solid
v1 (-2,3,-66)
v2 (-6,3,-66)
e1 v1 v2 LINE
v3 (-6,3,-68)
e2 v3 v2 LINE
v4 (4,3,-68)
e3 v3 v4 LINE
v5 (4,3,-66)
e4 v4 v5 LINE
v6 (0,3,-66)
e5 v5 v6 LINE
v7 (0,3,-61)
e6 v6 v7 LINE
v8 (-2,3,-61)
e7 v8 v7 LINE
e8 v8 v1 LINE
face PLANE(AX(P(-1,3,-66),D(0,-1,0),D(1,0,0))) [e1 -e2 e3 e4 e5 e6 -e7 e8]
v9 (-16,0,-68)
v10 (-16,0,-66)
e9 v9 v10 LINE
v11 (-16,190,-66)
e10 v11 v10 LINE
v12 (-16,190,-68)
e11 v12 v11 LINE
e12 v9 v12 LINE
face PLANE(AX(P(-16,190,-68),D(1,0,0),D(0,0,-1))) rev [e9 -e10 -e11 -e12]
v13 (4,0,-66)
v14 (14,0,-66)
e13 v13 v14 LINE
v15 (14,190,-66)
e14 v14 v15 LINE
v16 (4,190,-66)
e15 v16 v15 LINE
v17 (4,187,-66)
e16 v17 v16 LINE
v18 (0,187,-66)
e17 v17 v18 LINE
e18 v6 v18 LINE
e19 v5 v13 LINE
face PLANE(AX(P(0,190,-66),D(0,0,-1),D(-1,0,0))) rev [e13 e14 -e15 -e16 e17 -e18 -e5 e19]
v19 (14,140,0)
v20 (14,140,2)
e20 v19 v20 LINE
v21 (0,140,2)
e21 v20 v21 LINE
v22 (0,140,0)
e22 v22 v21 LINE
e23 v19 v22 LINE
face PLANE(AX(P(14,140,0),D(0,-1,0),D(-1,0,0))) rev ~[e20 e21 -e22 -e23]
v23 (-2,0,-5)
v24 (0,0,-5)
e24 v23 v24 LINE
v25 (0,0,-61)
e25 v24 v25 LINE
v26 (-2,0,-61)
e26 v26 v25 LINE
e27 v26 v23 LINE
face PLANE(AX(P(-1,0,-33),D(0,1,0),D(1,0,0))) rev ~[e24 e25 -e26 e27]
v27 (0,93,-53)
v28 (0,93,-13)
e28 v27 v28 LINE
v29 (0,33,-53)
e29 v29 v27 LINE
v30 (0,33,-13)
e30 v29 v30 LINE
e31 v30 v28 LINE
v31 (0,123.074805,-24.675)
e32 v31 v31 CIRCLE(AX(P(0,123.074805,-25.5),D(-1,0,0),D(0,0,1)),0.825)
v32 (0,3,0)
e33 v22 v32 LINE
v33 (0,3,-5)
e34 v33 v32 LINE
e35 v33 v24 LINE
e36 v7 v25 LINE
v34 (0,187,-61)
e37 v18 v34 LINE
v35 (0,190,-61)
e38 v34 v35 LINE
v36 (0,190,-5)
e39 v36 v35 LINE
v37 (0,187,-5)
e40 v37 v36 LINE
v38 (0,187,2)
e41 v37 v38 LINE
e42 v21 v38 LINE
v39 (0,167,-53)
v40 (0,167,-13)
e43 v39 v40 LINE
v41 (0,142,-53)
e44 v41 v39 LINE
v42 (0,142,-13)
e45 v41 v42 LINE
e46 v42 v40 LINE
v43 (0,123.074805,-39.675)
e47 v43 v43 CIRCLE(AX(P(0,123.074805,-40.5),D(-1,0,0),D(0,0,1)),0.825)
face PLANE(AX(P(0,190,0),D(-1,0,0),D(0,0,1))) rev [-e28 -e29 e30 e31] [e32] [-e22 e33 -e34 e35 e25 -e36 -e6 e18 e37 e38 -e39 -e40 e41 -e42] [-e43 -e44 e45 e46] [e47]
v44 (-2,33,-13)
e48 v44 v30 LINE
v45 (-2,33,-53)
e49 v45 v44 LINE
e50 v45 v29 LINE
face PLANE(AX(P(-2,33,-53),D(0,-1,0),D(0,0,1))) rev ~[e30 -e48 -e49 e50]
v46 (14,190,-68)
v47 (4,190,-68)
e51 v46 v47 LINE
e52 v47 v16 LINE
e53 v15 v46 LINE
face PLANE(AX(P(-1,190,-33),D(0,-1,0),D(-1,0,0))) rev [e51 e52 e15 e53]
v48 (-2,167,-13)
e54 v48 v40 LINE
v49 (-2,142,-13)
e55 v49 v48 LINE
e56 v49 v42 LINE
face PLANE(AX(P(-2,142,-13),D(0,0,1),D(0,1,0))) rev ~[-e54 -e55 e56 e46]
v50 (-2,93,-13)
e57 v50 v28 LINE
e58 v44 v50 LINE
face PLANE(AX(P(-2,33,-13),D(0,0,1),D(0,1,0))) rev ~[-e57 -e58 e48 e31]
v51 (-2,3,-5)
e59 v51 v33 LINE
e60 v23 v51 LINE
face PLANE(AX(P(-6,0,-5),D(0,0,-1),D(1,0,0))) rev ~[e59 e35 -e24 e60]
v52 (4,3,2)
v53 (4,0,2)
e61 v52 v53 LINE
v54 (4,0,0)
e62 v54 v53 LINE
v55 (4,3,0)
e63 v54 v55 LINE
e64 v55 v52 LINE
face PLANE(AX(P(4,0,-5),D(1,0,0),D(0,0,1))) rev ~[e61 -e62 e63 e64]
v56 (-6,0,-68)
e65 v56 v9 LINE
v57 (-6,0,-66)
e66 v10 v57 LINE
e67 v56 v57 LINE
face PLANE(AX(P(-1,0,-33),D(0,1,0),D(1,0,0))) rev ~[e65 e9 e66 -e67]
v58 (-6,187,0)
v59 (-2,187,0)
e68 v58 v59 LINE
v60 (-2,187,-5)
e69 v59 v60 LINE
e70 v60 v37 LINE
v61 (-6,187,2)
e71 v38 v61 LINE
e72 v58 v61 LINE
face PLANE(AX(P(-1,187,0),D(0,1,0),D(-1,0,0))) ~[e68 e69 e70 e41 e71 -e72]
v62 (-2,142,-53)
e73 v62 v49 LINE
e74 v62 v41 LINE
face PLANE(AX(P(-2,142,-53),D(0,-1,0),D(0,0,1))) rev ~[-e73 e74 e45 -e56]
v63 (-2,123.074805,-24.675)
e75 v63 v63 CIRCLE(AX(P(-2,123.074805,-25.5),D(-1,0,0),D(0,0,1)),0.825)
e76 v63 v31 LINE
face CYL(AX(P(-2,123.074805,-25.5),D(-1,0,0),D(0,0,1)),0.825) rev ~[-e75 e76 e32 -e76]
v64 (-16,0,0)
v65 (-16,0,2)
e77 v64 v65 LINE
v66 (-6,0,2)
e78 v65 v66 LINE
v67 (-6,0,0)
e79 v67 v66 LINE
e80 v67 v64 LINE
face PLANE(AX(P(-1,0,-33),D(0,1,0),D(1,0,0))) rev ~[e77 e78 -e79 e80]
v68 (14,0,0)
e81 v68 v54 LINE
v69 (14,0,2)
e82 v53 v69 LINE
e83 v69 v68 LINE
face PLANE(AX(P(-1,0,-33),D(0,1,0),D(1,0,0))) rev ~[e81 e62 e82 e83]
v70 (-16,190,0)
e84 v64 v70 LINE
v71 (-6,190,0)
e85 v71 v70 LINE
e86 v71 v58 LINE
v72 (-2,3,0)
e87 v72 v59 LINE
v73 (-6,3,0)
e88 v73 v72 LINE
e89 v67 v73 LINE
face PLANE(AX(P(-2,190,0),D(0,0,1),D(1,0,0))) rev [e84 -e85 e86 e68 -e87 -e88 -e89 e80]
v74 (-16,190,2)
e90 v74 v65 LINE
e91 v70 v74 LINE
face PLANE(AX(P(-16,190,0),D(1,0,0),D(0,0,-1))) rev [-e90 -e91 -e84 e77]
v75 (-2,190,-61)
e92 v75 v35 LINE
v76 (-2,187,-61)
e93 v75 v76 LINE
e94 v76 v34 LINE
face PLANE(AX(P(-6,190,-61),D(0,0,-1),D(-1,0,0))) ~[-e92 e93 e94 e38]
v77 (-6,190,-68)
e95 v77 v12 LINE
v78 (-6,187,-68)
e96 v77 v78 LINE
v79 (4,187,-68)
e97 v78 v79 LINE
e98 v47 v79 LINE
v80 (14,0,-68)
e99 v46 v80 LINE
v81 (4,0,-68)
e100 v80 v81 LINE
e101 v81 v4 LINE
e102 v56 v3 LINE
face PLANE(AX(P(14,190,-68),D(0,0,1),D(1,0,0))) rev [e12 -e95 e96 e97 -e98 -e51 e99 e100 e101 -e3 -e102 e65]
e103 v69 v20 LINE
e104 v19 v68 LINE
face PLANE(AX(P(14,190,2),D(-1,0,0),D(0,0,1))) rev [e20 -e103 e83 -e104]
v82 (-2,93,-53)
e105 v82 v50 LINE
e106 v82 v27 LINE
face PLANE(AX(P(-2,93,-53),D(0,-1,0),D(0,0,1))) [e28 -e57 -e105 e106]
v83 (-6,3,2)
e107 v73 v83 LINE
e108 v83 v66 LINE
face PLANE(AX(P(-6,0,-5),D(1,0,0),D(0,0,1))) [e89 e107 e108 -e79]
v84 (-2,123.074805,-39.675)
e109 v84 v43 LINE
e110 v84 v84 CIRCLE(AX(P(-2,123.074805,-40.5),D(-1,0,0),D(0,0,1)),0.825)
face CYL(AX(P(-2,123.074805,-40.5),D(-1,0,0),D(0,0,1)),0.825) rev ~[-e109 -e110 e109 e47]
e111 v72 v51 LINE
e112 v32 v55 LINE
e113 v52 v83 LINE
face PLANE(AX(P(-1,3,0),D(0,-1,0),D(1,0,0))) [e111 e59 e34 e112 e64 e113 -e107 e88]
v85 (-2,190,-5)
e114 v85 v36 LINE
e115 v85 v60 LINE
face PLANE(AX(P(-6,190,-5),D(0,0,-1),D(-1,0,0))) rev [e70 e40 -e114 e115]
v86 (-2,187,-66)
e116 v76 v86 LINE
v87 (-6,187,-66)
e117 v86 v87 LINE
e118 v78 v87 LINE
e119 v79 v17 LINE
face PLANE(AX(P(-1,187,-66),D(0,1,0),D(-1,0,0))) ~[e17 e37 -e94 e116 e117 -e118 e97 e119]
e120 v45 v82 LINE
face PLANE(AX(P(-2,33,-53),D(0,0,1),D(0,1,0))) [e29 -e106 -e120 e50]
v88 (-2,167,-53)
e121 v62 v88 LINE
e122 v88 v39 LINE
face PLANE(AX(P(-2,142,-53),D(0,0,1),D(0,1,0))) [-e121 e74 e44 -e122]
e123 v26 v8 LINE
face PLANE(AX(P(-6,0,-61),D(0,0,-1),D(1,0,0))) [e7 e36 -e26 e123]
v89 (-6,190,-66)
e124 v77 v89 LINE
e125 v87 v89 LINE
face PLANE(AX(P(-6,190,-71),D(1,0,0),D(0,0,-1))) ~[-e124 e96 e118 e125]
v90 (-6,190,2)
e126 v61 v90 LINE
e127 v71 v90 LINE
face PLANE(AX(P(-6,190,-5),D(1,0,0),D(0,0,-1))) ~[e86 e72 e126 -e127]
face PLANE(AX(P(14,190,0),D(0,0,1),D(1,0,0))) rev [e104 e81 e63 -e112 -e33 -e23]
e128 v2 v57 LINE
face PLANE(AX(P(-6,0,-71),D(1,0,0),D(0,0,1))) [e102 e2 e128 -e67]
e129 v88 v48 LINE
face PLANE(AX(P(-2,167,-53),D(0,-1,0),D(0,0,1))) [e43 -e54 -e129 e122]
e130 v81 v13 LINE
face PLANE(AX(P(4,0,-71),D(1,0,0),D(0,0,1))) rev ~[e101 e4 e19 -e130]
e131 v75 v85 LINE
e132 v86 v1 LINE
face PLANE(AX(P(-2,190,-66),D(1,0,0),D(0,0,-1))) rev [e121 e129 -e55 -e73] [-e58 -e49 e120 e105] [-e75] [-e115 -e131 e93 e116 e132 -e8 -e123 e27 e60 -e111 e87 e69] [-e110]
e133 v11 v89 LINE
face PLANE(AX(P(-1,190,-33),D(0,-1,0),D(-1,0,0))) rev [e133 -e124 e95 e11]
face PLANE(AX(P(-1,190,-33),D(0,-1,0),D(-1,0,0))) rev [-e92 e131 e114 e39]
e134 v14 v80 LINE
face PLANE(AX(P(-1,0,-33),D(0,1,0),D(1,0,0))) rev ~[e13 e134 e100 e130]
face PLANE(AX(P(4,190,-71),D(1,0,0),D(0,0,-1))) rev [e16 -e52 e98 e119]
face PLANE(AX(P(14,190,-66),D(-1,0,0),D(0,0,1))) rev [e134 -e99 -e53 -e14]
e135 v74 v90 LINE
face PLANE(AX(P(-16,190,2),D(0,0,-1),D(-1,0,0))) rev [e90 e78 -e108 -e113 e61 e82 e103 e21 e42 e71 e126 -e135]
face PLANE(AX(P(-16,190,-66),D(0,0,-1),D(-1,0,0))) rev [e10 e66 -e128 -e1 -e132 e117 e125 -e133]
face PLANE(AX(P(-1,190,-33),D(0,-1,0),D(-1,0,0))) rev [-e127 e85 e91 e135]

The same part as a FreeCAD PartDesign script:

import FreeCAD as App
import Part
import Sketcher

doc = App.newDocument("Part")
body = doc.addObject("PartDesign::Body", "Body")

sketch1 = body.newObject("Sketcher::SketchObject", "Sketch")
sketch1.AttachmentSupport = (doc.getObject("XZ_Plane"), [""])
sketch1.MapMode = "FlatFace"
sketch1.addGeometry([
    Part.LineSegment(App.Vector(0, 0, 0), App.Vector(0, -66, 0)),
    Part.LineSegment(App.Vector(0, -66, 0), App.Vector(14, -66, 0)),
    Part.LineSegment(App.Vector(14, -66, 0), App.Vector(14, -68, 0)),
    Part.LineSegment(App.Vector(14, -68, 0), App.Vector(-16, -68, 0)),
    Part.LineSegment(App.Vector(-16, -68, 0), App.Vector(-16, -66, 0)),
    Part.LineSegment(App.Vector(-16, -66, 0), App.Vector(-2, -66, 0)),
    Part.LineSegment(App.Vector(-2, -66, 0), App.Vector(-2, 0, 0)),
    Part.LineSegment(App.Vector(-2, 0, 0), App.Vector(-16, 0, 0)),
    Part.LineSegment(App.Vector(-16, 0, 0), App.Vector(-16, 2, 0)),
    Part.LineSegment(App.Vector(-16, 2, 0), App.Vector(14, 2, 0)),
    Part.LineSegment(App.Vector(14, 2, 0), App.Vector(14, 0, 0)),
    Part.LineSegment(App.Vector(14, 0, 0), App.Vector(0, 0, 0)),
], False)
sketch1.addConstraint([
    Sketcher.Constraint("Coincident", 0, 2, 1, 1),
    Sketcher.Constraint("Coincident", 1, 2, 2, 1),
    Sketcher.Constraint("Coincident", 2, 2, 3, 1),
    Sketcher.Constraint("Coincident", 3, 2, 4, 1),
    Sketcher.Constraint("Coincident", 4, 2, 5, 1),
    Sketcher.Constraint("Coincident", 5, 2, 6, 1),
    Sketcher.Constraint("Coincident", 6, 2, 7, 1),
    Sketcher.Constraint("Coincident", 7, 2, 8, 1),
    Sketcher.Constraint("Coincident", 8, 2, 9, 1),
    Sketcher.Constraint("Coincident", 9, 2, 10, 1),
    Sketcher.Constraint("Coincident", 10, 2, 11, 1),
    Sketcher.Constraint("Coincident", 11, 2, 0, 1),
    Sketcher.Constraint("Vertical", 0),
    Sketcher.Constraint("Horizontal", 1),
    Sketcher.Constraint("Vertical", 2),
    Sketcher.Constraint("Horizontal", 3),
    Sketcher.Constraint("Vertical", 4),
    Sketcher.Constraint("Horizontal", 5),
    Sketcher.Constraint("Vertical", 6),
    Sketcher.Constraint("Horizontal", 7),
    Sketcher.Constraint("Vertical", 8),
    Sketcher.Constraint("Horizontal", 9),
    Sketcher.Constraint("Vertical", 10),
    Sketcher.Constraint("Horizontal", 11),
    Sketcher.Constraint("Coincident", 11, 2, -1, 1),
    Sketcher.Constraint("PointOnObject", 6, 2, -1),
    Sketcher.Constraint("Horizontal", 1, 2, 4, 2),
    Sketcher.Constraint("Vertical", 4, 2, 7, 2),
    Sketcher.Constraint("Vertical", 2, 2, 9, 2),
    Sketcher.Constraint("Equal", 1, 5),
    Sketcher.Constraint("Equal", 4, 8),
    Sketcher.Constraint("DistanceX", 1, 1, 1, 2, 14.0),
    Sketcher.Constraint("DistanceX", 3, 2, 3, 1, 30.0),
    Sketcher.Constraint("DistanceY", 0, 2, 0, 1, 66.0),
    Sketcher.Constraint("DistanceY", 2, 2, 2, 1, 2.0),
])
pad1 = body.newObject("PartDesign::Pad", "Pad")
pad1.Profile = sketch1
pad1.Length = 95
pad1.Reversed = True

sketch2 = body.newObject("Sketcher::SketchObject", "Sketch001")
sketch2.AttachmentSupport = (doc.getObject("XZ_Plane"), [""])
sketch2.MapMode = "FlatFace"
sketch2.addGeometry([
    Part.LineSegment(App.Vector(-6, 5, 0), App.Vector(-6, -5, 0)),
    Part.LineSegment(App.Vector(-6, -5, 0), App.Vector(4, -5, 0)),
    Part.LineSegment(App.Vector(4, -5, 0), App.Vector(4, 5, 0)),
    Part.LineSegment(App.Vector(4, 5, 0), App.Vector(-6, 5, 0)),
    Part.LineSegment(App.Vector(-6, -61, 0), App.Vector(-6, -71, 0)),
    Part.LineSegment(App.Vector(-6, -71, 0), App.Vector(4, -71, 0)),
    Part.LineSegment(App.Vector(4, -71, 0), App.Vector(4, -61, 0)),
    Part.LineSegment(App.Vector(4, -61, 0), App.Vector(-6, -61, 0)),
], False)
sketch2.addConstraint([
    Sketcher.Constraint("Coincident", 0, 2, 1, 1),
    Sketcher.Constraint("Coincident", 1, 2, 2, 1),
    Sketcher.Constraint("Coincident", 2, 2, 3, 1),
    Sketcher.Constraint("Coincident", 3, 2, 0, 1),
    Sketcher.Constraint("Coincident", 4, 2, 5, 1),
    Sketcher.Constraint("Coincident", 5, 2, 6, 1),
    Sketcher.Constraint("Coincident", 6, 2, 7, 1),
    Sketcher.Constraint("Coincident", 7, 2, 4, 1),
    Sketcher.Constraint("Vertical", 0),
    Sketcher.Constraint("Horizontal", 1),
    Sketcher.Constraint("Vertical", 2),
    Sketcher.Constraint("Horizontal", 3),
    Sketcher.Constraint("Vertical", 4),
    Sketcher.Constraint("Horizontal", 5),
    Sketcher.Constraint("Vertical", 6),
    Sketcher.Constraint("Horizontal", 7),
    Sketcher.Constraint("Vertical", 3, 2, 4, 2),
    Sketcher.Constraint("Vertical", 2, 2, 5, 2),
    Sketcher.Constraint("Equal", 7, 0),
    Sketcher.Constraint("Equal", 2, 4),
    Sketcher.Constraint("DistanceX", 1, 1, 1, 2, 10.0),
    Sketcher.Constraint("DistanceX", 0, 2, -1, 1, 6.0),
    Sketcher.Constraint("DistanceY", 0, 2, -1, 1, 5.0),
    Sketcher.Constraint("DistanceY", 4, 2, -1, 1, 71.0),
])
pocket1 = body.newObject("PartDesign::Pocket", "Pocket")
pocket1.Profile = sketch2
pocket1.Length = 3
body2 = doc.addObject("PartDesign::Body", "Body001")
doc.recompute()

body2.BaseFeature = body
doc.recompute()

mirroring = doc.addObject("Part::Mirroring", "Mirroring")
mirroring.Source = body
mirroring.Base = App.Vector(0, 95, 0)
mirroring.Normal = App.Vector(0, -1, 0)
body3 = doc.addObject("PartDesign::Body", "Body002")
body3.BaseFeature = mirroring
boolean = body2.newObject("PartDesign::Boolean", "Boolean")
boolean.Type = "Fuse"
boolean.addObjects([body3])
doc.recompute()

sketch3 = body2.newObject("Sketcher::SketchObject", "Sketch002")
sketch3.AttachmentSupport = (doc.getObject("YZ_Plane001"), [""])
sketch3.MapMode = "FlatFace"
sketch3.AttachmentOffset = App.Placement(App.Vector(0, 0, -2), App.Rotation())
sketch3.addGeometry([
    Part.LineSegment(App.Vector(167, -53, 0), App.Vector(142, -53, 0)),
    Part.LineSegment(App.Vector(142, -53, 0), App.Vector(142, -13, 0)),
    Part.LineSegment(App.Vector(142, -13, 0), App.Vector(167, -13, 0)),
    Part.LineSegment(App.Vector(167, -13, 0), App.Vector(167, -53, 0)),
    Part.LineSegment(App.Vector(93, -53, 0), App.Vector(33, -53, 0)),
    Part.LineSegment(App.Vector(33, -53, 0), App.Vector(33, -13, 0)),
    Part.LineSegment(App.Vector(33, -13, 0), App.Vector(93, -13, 0)),
    Part.LineSegment(App.Vector(93, -13, 0), App.Vector(93, -53, 0)),
], False)
sketch3.addConstraint([
    Sketcher.Constraint("Coincident", 0, 2, 1, 1),
    Sketcher.Constraint("Coincident", 1, 2, 2, 1),
    Sketcher.Constraint("Coincident", 2, 2, 3, 1),
    Sketcher.Constraint("Coincident", 3, 2, 0, 1),
    Sketcher.Constraint("Coincident", 4, 2, 5, 1),
    Sketcher.Constraint("Coincident", 5, 2, 6, 1),
    Sketcher.Constraint("Coincident", 6, 2, 7, 1),
    Sketcher.Constraint("Coincident", 7, 2, 4, 1),
    Sketcher.Constraint("Horizontal", 0),
    Sketcher.Constraint("Vertical", 1),
    Sketcher.Constraint("Horizontal", 2),
    Sketcher.Constraint("Vertical", 3),
    Sketcher.Constraint("Horizontal", 4),
    Sketcher.Constraint("Vertical", 5),
    Sketcher.Constraint("Horizontal", 6),
    Sketcher.Constraint("Vertical", 7),
    Sketcher.Constraint("Horizontal", 3, 2, 4, 2),
    Sketcher.Constraint("Horizontal", 2, 2, 5, 2),
    Sketcher.Constraint("DistanceX", 0, 2, 0, 1, 25.0),
    Sketcher.Constraint("DistanceX", 4, 2, 4, 1, 60.0),
    Sketcher.Constraint("DistanceY", 1, 1, 1, 2, 40.0),
    Sketcher.Constraint("DistanceX", -1, 1, 0, 2, 142.0),
    Sketcher.Constraint("DistanceY", 0, 2, -1, 1, 53.0),
    Sketcher.Constraint("DistanceX", -1, 1, 4, 2, 33.0),
])
pocket2 = body2.newObject("PartDesign::Pocket", "Pocket001")
pocket2.Profile = sketch3
pocket2.Length = 2
pocket2.Reversed = True

sketch4 = body2.newObject("Sketcher::SketchObject", "Sketch003")
sketch4.AttachmentSupport = (doc.getObject("XY_Plane001"), [""])
sketch4.MapMode = "FlatFace"
sketch4.addGeometry([
    Part.LineSegment(App.Vector(14, 190, 0), App.Vector(14, 140, 0)),
    Part.LineSegment(App.Vector(14, 140, 0), App.Vector(0, 140, 0)),
    Part.LineSegment(App.Vector(0, 140, 0), App.Vector(0, 190, 0)),
    Part.LineSegment(App.Vector(0, 190, 0), App.Vector(14, 190, 0)),
], False)
sketch4.addConstraint([
    Sketcher.Constraint("Coincident", 0, 2, 1, 1),
    Sketcher.Constraint("Coincident", 1, 2, 2, 1),
    Sketcher.Constraint("Coincident", 2, 2, 3, 1),
    Sketcher.Constraint("Coincident", 3, 2, 0, 1),
    Sketcher.Constraint("Vertical", 0),
    Sketcher.Constraint("Horizontal", 1),
    Sketcher.Constraint("Vertical", 2),
    Sketcher.Constraint("Horizontal", 3),
    Sketcher.Constraint("PointOnObject", 1, 2, -2),
    Sketcher.Constraint("DistanceX", 1, 2, 1, 1, 14.0),
    Sketcher.Constraint("DistanceY", 0, 2, 0, 1, 50.0),
    Sketcher.Constraint("DistanceY", -1, 1, 0, 2, 140.0),
])
pocket3 = body2.newObject("PartDesign::Pocket", "Pocket002")
pocket3.Profile = sketch4
pocket3.Length = 2
pocket3.Reversed = True

sketch5 = body2.newObject("Sketcher::SketchObject", "Sketch004")
sketch5.AttachmentSupport = (doc.getObject("YZ_Plane001"), [""])
sketch5.MapMode = "FlatFace"
sketch5.AttachmentOffset = App.Placement(App.Vector(0, 0, -2), App.Rotation())
sketch5.addGeometry([
    Part.Circle(App.Vector(123.074805, -25.5, 0), App.Vector(0, 0, 1), 0.825),
    Part.Circle(App.Vector(123.074805, -40.5, 0), App.Vector(0, 0, 1), 0.825),
], False)
sketch5.addConstraint([
    Sketcher.Constraint("Equal", 0, 1),
    Sketcher.Constraint("Vertical", 0, 3, 1, 3),
    Sketcher.Constraint("Diameter", 0, 1.65),
    Sketcher.Constraint("DistanceY", 1, 3, 0, 3, 15.0),
    Sketcher.Constraint("DistanceY", 0, 3, -1, 1, 25.5),
    Sketcher.Constraint("DistanceX", -1, 1, 0, 3, 123.074805),
])
pocket4 = body2.newObject("PartDesign::Pocket", "Pocket003")
pocket4.Profile = sketch5
pocket4.Type = "ThroughAll"
pocket4.Reversed = True
mirroring.Visibility = False

doc.recompute()
